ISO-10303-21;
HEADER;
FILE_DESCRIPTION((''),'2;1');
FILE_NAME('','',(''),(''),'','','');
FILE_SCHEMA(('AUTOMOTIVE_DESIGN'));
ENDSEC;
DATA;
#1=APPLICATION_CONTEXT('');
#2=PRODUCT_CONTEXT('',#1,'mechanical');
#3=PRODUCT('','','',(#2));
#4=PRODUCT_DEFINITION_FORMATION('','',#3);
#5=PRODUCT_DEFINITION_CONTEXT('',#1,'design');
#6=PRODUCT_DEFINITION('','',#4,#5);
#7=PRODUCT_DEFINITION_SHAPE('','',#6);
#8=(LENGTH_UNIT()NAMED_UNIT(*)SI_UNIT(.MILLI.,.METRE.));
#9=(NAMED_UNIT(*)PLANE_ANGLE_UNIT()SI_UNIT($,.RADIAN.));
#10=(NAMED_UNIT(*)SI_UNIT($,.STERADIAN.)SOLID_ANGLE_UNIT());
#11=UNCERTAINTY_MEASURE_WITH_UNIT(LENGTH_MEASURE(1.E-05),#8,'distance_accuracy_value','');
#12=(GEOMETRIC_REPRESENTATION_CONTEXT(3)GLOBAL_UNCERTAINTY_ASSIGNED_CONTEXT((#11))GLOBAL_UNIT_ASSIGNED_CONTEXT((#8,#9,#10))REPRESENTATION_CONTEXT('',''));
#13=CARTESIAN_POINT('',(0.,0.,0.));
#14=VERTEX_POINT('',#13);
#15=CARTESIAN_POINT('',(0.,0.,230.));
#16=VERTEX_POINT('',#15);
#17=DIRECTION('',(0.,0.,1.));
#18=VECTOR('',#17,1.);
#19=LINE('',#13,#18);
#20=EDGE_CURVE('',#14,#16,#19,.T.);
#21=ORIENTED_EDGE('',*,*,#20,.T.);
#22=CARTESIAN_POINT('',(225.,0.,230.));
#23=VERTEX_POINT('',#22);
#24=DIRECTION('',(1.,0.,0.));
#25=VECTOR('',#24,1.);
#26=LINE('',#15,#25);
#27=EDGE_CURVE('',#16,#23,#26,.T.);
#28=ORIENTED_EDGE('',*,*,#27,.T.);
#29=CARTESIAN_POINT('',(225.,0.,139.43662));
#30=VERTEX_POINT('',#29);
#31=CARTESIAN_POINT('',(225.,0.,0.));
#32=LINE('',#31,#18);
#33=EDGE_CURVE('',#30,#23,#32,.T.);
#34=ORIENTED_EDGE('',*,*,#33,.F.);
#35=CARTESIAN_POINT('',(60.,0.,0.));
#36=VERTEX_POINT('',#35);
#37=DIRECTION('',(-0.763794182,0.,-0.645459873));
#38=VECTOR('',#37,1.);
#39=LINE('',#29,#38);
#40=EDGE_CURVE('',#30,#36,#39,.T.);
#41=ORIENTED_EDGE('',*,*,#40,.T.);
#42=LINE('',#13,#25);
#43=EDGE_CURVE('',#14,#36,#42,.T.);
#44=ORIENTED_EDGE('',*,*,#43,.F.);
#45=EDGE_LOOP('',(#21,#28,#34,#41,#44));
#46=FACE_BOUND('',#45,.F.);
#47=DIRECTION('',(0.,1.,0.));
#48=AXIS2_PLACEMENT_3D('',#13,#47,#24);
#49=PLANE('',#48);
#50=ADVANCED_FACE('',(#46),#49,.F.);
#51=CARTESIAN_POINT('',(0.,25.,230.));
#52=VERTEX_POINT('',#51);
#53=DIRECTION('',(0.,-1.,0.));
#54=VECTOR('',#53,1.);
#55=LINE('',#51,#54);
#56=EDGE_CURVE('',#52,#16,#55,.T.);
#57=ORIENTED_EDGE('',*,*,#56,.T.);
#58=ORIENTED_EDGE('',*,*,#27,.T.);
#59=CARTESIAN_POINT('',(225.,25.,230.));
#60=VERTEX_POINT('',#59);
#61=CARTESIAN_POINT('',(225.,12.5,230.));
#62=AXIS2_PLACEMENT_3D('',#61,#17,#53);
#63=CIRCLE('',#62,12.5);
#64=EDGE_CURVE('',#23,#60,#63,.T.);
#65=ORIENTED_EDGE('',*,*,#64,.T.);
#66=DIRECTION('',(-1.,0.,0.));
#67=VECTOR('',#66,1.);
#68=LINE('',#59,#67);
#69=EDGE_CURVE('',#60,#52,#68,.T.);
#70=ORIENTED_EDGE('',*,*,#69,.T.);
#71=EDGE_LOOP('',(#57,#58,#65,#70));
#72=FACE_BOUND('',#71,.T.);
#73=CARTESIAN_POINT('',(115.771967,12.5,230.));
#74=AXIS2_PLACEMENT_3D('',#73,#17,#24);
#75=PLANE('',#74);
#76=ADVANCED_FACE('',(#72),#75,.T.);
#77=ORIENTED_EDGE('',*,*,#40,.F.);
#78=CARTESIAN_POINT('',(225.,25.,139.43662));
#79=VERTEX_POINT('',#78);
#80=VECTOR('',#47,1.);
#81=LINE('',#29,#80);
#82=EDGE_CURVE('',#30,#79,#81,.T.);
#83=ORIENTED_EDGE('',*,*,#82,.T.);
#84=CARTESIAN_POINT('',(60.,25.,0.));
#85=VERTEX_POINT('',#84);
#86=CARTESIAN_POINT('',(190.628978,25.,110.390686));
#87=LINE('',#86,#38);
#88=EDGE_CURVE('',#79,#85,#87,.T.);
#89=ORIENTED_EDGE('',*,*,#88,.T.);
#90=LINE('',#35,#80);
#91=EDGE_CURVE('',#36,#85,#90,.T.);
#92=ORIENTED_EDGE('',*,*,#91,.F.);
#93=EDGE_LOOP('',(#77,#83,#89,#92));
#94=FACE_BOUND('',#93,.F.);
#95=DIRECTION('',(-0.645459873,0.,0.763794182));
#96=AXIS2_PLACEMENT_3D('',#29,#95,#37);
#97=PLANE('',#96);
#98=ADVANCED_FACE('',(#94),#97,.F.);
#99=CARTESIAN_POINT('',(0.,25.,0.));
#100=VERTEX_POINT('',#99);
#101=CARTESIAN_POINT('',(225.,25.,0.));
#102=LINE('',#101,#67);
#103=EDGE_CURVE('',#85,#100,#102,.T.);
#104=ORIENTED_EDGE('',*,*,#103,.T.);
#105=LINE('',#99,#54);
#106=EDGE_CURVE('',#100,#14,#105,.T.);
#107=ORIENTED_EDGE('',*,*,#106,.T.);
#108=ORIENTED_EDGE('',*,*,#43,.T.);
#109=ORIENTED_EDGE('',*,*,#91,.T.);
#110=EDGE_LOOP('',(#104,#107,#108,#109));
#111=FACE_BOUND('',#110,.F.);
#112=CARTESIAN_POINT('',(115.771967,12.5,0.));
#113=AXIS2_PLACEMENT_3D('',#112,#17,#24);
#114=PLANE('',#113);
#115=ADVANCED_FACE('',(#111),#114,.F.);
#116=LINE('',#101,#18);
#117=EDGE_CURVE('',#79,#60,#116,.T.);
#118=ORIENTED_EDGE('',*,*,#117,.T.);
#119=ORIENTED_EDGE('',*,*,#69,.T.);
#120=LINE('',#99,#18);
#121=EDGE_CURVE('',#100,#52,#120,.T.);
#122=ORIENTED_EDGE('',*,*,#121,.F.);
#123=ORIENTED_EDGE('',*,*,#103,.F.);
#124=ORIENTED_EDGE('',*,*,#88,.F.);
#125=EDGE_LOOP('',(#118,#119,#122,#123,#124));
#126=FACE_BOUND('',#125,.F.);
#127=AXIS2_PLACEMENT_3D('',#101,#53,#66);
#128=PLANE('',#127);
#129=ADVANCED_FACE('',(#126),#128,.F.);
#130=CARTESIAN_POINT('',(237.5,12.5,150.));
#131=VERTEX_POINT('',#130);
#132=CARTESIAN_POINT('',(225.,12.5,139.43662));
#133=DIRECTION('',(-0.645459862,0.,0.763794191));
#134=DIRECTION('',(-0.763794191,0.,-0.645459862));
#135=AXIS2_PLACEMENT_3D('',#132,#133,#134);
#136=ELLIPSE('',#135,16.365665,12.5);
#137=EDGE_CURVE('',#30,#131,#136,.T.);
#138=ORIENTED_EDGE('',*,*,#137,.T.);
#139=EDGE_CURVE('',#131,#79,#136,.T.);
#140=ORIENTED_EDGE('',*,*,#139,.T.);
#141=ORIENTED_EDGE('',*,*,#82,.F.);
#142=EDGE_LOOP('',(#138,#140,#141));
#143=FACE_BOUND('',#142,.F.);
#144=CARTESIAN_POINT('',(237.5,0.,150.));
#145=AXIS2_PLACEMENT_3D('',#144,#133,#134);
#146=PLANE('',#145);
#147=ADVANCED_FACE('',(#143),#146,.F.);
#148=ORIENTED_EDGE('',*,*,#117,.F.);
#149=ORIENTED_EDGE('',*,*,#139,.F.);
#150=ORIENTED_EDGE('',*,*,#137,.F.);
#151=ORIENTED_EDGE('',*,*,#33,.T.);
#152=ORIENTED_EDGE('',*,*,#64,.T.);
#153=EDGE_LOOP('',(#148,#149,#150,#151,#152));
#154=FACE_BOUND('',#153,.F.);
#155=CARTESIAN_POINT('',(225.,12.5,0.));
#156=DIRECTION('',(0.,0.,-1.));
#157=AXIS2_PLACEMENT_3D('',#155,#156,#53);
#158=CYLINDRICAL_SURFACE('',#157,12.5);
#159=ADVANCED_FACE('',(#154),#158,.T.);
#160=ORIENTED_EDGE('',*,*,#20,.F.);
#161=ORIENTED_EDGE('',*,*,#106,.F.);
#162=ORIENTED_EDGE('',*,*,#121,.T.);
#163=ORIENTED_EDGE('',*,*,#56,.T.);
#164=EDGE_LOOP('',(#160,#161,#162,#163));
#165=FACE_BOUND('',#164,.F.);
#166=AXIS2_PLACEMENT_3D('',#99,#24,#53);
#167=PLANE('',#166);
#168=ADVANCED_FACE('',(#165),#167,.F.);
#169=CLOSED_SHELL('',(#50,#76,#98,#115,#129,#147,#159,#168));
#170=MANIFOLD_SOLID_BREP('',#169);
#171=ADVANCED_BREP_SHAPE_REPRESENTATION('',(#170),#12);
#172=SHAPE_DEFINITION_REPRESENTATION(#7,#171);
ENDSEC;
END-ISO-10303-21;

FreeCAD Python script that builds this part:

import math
import FreeCAD as App
import Part
import Sketcher


def add_polygon(sketch, points):
    """Adds a closed chain of lines whose ends are joined by coincident constraints."""
    first, n = sketch.GeometryCount, len(points)
    for a, b in zip(points, points[1:] + points[:1]):
        sketch.addGeometry(Part.LineSegment(App.Vector(*a, 0), App.Vector(*b, 0)), False)
    for i in range(n):
        sketch.addConstraint(Sketcher.Constraint("Coincident", first + i, 2, first + (i + 1) % n, 1))

doc = App.newDocument("Part")
body = doc.addObject("PartDesign::Body", "Body")

sketch1 = body.newObject("Sketcher::SketchObject", "Sketch")
sketch1.AttachmentSupport = (doc.getObject("XY_Plane"), [""])
sketch1.MapMode = "FlatFace"
sketch1.addGeometry(Part.LineSegment(App.Vector(0, 25, 0), App.Vector(0, 0, 0)), False)
sketch1.addGeometry(Part.LineSegment(App.Vector(0, 0, 0), App.Vector(225, 0, 0)), False)
sketch1.addGeometry(Part.ArcOfCircle(Part.Circle(App.Vector(225, 12, 0), App.Vector(0, 0, 1), 12), math.radians(-90), math.radians(90)), False)
sketch1.addGeometry(Part.LineSegment(App.Vector(225, 25, 0), App.Vector(0, 25, 0)), False)
sketch1.addConstraint(Sketcher.Constraint("Coincident", 0, 2, 1, 1))
sketch1.addConstraint(Sketcher.Constraint("Tangent", 1, 2, 2, 1))
sketch1.addConstraint(Sketcher.Constraint("Tangent", 2, 2, 3, 1))
sketch1.addConstraint(Sketcher.Constraint("Coincident", 3, 2, 0, 1))
sketch1.addConstraint(Sketcher.Constraint("Vertical", 0))
sketch1.addConstraint(Sketcher.Constraint("Horizontal", 1))
sketch1.addConstraint(Sketcher.Constraint("Horizontal", 3))
sketch1.addConstraint(Sketcher.Constraint("Coincident", 0, 2, -1, 1))
sketch1.addConstraint(Sketcher.Constraint("Radius", 2, 12.5))
sketch1.addConstraint(Sketcher.Constraint("DistanceX", 1, 1, 1, 2, 225.0))
pad1 = body.newObject("PartDesign::Pad", "Pad")
pad1.Profile = sketch1
pad1.Length = 230

sketch2 = body.newObject("Sketcher::SketchObject", "Sketch001")
sketch2.AttachmentSupport = (doc.getObject("XZ_Plane"), [""])
sketch2.MapMode = "FlatFace"
add_polygon(sketch2, [(238, 0), (238, 150), (225, 139), (60, 0)])
sketch2.addConstraint(Sketcher.Constraint("Vertical", 0))
sketch2.addConstraint(Sketcher.Constraint("Horizontal", 3))
sketch2.addConstraint(Sketcher.Constraint("PointOnObject", 2, 2, -1))
sketch2.addConstraint(Sketcher.Constraint("Parallel", 1, 2))
sketch2.addConstraint(Sketcher.Constraint("DistanceY", 0, 1, 0, 2, 150.0))
sketch2.addConstraint(Sketcher.Constraint("DistanceX", 3, 1, 3, 2, 177.5))
sketch2.addConstraint(Sketcher.Constraint("DistanceX", -1, 1, 1, 2, 225.0))
sketch2.addConstraint(Sketcher.Constraint("DistanceX", -1, 1, 2, 2, 60.0))
pocket1 = body.newObject("PartDesign::Pocket", "Pocket")
pocket1.Profile = sketch2
pocket1.Type = "ThroughAll"

doc.recompute()
